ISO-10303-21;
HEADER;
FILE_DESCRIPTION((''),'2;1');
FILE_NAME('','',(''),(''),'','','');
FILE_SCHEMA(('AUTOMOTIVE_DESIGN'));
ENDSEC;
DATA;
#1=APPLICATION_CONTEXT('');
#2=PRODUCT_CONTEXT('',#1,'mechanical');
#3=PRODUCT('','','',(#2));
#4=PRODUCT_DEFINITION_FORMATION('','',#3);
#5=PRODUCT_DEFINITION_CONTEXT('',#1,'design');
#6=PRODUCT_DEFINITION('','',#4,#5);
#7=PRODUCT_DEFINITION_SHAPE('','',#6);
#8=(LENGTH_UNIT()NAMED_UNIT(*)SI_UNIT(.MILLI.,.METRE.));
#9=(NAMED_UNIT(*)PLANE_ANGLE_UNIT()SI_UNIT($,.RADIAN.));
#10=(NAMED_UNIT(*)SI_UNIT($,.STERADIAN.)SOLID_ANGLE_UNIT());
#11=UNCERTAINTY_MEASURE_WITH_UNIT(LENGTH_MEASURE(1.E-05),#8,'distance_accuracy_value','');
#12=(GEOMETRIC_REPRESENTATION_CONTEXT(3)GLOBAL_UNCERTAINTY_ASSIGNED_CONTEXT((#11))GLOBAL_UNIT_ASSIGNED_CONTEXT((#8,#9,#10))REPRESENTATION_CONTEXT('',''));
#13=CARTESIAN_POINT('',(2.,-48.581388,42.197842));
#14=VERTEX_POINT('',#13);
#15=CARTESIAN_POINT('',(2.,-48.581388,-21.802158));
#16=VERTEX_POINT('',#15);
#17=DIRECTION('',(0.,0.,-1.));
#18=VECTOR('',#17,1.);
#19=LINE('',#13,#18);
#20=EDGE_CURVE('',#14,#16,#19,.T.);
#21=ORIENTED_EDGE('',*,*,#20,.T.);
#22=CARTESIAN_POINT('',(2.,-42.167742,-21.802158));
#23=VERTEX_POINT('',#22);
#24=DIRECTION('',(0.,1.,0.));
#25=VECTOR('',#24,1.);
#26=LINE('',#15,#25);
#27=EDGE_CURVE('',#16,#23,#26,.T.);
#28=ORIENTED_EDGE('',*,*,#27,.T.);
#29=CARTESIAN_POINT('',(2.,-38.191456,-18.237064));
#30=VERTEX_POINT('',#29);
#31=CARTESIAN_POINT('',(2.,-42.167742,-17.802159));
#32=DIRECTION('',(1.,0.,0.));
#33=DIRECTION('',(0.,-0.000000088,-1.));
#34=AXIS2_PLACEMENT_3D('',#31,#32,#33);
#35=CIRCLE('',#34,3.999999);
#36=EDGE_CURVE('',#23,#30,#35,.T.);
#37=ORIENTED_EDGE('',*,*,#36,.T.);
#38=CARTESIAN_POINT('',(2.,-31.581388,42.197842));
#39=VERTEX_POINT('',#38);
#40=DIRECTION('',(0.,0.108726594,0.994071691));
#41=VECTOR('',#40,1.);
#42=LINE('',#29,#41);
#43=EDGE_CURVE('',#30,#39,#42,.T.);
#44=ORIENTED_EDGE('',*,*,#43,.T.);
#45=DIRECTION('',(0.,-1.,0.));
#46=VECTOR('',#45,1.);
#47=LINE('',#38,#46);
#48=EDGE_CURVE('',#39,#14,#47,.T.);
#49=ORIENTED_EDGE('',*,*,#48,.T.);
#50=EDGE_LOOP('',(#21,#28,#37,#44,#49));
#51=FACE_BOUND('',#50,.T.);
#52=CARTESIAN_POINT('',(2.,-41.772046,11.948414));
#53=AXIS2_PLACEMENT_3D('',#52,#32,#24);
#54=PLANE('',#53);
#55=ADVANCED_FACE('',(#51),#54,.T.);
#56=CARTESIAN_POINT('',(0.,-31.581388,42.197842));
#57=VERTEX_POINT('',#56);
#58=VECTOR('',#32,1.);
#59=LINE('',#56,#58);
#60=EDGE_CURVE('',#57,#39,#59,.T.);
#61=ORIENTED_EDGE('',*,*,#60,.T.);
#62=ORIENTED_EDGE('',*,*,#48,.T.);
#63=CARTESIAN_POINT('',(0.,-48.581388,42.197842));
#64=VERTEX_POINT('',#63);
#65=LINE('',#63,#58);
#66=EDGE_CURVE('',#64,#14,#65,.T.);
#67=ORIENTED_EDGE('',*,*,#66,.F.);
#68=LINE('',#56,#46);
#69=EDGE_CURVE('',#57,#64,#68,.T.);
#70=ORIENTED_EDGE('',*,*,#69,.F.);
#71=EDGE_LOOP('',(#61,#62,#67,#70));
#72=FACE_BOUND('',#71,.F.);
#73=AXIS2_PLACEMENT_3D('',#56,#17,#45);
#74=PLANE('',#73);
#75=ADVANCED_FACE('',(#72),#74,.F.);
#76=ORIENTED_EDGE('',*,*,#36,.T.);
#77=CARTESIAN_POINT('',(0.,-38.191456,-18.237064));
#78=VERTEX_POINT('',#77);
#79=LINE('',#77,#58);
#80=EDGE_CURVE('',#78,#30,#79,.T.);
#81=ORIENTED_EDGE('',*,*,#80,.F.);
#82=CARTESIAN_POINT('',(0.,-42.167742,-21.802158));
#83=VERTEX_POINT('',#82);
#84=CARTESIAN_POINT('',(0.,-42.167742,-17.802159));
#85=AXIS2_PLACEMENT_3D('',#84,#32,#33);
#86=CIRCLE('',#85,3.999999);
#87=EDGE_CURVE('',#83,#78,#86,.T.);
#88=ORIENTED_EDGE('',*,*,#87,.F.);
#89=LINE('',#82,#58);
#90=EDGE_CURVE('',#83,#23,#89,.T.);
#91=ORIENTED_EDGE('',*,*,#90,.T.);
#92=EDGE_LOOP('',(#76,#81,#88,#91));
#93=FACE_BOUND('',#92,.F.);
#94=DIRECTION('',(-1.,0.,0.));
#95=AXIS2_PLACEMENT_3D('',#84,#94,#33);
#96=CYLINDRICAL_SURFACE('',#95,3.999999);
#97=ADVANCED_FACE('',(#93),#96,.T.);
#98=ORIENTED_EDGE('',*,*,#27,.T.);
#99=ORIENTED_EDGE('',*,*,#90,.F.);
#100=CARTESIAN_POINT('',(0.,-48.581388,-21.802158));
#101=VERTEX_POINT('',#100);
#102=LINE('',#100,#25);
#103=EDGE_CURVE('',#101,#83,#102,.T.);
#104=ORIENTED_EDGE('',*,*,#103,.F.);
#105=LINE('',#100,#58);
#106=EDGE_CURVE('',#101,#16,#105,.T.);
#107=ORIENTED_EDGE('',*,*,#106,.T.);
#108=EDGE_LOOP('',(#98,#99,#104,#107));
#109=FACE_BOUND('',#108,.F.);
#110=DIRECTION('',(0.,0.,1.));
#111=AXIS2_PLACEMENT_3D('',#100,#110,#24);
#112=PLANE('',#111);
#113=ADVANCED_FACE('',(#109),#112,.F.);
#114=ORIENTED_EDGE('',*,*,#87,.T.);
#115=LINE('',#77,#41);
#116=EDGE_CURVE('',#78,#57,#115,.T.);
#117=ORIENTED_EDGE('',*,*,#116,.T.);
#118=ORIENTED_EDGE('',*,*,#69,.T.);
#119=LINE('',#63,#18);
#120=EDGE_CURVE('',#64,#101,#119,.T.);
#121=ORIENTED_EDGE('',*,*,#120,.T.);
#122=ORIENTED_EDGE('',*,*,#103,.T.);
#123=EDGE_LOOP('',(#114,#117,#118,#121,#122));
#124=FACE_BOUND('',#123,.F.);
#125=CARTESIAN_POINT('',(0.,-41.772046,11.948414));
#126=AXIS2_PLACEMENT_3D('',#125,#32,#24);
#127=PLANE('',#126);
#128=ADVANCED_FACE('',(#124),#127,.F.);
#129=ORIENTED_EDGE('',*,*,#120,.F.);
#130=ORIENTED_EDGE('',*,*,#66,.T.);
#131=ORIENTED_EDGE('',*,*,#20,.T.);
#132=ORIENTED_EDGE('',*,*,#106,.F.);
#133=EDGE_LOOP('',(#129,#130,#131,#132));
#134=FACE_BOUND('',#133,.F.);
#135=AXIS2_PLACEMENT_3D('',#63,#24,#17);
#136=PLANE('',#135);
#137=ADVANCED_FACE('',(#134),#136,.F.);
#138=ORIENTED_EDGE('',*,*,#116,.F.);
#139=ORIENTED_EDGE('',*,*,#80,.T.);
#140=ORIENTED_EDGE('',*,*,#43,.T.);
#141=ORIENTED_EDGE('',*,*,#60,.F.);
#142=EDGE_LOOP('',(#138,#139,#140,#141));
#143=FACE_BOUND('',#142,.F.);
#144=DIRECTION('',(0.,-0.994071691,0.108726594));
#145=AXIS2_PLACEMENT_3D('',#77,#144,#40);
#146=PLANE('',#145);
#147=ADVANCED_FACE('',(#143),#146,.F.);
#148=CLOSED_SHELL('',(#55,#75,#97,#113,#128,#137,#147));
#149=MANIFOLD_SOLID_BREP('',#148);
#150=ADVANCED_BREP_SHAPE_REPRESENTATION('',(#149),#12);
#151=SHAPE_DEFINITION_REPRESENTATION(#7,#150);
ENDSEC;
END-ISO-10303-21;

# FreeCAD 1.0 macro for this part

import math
import FreeCAD as App
import Part
import Sketcher
from FreeCAD import Vector

doc = App.newDocument("Part")
params = doc.addObject("Spreadsheet::Sheet", "Params")
for row, (alias, value) in enumerate([
    ("sketch1_radius", "3.999999 mm"),
    ("sketch1_width", "17 mm"),
    ("sketch1_height", "64 mm"),
    ("pad1_length", "2 mm"),
], start=1):
    params.set(f"A{row}", alias)
    params.set(f"B{row}", "=" + value)
    params.setAlias(f"B{row}", alias)

body = doc.addObject("PartDesign::Body", "Body")

sketch1 = doc.addObject("Sketcher::SketchObject", "Sketch")
body.addObject(sketch1)
sketch1.AttachmentSupport = (doc.YZ_Plane, [""])
sketch1.MapMode = "FlatFace"
sketch1.addGeometry([
    Part.LineSegment(Vector(-31.581388, 42.197842, 0), Vector(-48.581388, 42.197842, 0)),
    Part.LineSegment(Vector(-48.581388, 42.197842, 0), Vector(-48.581388, -21.802158, 0)),
    Part.LineSegment(Vector(-48.581388, -21.802158, 0), Vector(-42.167742, -21.802158, 0)),
    Part.ArcOfCircle(Part.Circle(Vector(-42.167742, -17.802159, 0), Vector(0, 0, 1), 3.999999), math.radians(-90.000005), math.radians(-6.241892)),
    Part.LineSegment(Vector(-38.191456, -18.237064, 0), Vector(-31.581388, 42.197842, 0)),
], False)
sketch1.addConstraint([
    Sketcher.Constraint("Coincident", 0, 2, 1, 1),
    Sketcher.Constraint("Coincident", 1, 2, 2, 1),
    Sketcher.Constraint("Tangent", 2, 2, 3, 1),
    Sketcher.Constraint("Tangent", 3, 2, 4, 1),
    Sketcher.Constraint("Coincident", 4, 2, 0, 1),
    Sketcher.Constraint("Horizontal", 0),
    Sketcher.Constraint("Vertical", 1),
    Sketcher.Constraint("Horizontal", 2),
    Sketcher.Constraint("Radius", 3, 3.999999),
    Sketcher.Constraint("DistanceX", 0, 2, 0, 1, 17.0),
    Sketcher.Constraint("DistanceY", 1, 2, 1, 1, 64.0),
    Sketcher.Constraint("Distance", 4, 60.795319),
    Sketcher.Constraint("DistanceX", 3, 3, -1, 1, 42.167742),
    Sketcher.Constraint("DistanceY", 3, 3, -1, 1, 17.802159),
])
sketch1.setExpression("Constraints[8]", "Params.sketch1_radius")
sketch1.setExpression("Constraints[9]", "Params.sketch1_width")
sketch1.setExpression("Constraints[10]", "Params.sketch1_height")
pad1 = doc.addObject("PartDesign::Pad", "Pad")
body.addObject(pad1)
pad1.Profile = sketch1
pad1.setExpression("Length", "Params.pad1_length")

doc.recompute()
